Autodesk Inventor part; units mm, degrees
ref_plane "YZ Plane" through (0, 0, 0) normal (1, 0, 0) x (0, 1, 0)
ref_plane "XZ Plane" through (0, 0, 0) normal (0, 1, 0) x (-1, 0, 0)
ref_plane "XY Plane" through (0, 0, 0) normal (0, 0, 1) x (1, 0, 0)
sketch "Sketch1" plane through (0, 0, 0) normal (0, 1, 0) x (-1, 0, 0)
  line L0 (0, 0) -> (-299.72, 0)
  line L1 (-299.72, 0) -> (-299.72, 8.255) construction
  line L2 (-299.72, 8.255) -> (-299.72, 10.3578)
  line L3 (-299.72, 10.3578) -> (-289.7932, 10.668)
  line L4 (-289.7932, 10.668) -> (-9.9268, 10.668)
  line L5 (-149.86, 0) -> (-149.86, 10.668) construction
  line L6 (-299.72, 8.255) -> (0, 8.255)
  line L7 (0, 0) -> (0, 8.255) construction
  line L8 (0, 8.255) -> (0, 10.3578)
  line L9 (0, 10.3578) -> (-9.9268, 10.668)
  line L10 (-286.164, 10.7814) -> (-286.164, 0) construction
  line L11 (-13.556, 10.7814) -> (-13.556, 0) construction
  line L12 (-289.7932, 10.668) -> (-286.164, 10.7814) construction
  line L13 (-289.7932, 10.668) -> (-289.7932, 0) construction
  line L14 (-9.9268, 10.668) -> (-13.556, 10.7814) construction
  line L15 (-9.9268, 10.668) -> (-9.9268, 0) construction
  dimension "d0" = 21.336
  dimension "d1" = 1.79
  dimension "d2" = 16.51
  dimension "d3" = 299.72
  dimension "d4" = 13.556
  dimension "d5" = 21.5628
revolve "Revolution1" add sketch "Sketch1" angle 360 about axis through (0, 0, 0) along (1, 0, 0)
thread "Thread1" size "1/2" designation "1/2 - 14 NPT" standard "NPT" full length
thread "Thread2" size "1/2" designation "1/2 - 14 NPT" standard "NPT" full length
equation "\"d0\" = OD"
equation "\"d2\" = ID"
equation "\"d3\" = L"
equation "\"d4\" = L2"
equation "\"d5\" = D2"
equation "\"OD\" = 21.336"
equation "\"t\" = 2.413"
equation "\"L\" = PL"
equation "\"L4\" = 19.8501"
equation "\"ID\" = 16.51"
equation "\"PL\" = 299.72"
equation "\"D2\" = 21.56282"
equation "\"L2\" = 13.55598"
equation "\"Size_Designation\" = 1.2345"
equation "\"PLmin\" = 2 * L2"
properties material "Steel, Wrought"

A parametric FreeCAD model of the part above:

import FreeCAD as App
import Part
import Sketcher
Q = App.Units.Quantity

doc = App.newDocument("Part")
body = doc.addObject("PartDesign::Body", "Body")

# Sketch on XZ plane
sketch1 = body.newObject("Sketcher::SketchObject", "Sketch")
sketch1.AttachmentSupport = (doc.getObject("XZ_Plane"), [""])
sketch1.MapMode = "FlatFace"
sketch1.addGeometry(Part.LineSegment(App.Vector(299.7, 10.4, 0), App.Vector(299.7, 8.3, 0)), False)
sketch1.addGeometry(Part.LineSegment(App.Vector(299.7, 8.3, 0), App.Vector(0, 8.3, 0)), False)
sketch1.addGeometry(Part.LineSegment(App.Vector(0, 8.3, 0), App.Vector(0, 10.4, 0)), False)
sketch1.addGeometry(Part.LineSegment(App.Vector(0, 10.4, 0), App.Vector(9.9, 10.7, 0)), False)
sketch1.addGeometry(Part.LineSegment(App.Vector(9.9, 10.7, 0), App.Vector(289.8, 10.7, 0)), False)
sketch1.addGeometry(Part.LineSegment(App.Vector(289.8, 10.7, 0), App.Vector(299.7, 10.4, 0)), False)
sketch1.addConstraint(Sketcher.Constraint("Coincident", 0, 2, 1, 1))
sketch1.addConstraint(Sketcher.Constraint("Coincident", 1, 2, 2, 1))
sketch1.addConstraint(Sketcher.Constraint("Coincident", 2, 2, 3, 1))
sketch1.addConstraint(Sketcher.Constraint("Coincident", 3, 2, 4, 1))
sketch1.addConstraint(Sketcher.Constraint("Coincident", 4, 2, 5, 1))
sketch1.addConstraint(Sketcher.Constraint("Coincident", 5, 2, 0, 1))
sketch1.addConstraint(Sketcher.Constraint("Vertical", 0))
sketch1.addConstraint(Sketcher.Constraint("Horizontal", 1))
sketch1.addConstraint(Sketcher.Constraint("Vertical", 2))
sketch1.addConstraint(Sketcher.Constraint("Horizontal", 4))
sketch1.addConstraint(Sketcher.Constraint("PointOnObject", 1, 2, -2))
sketch1.addConstraint(Sketcher.Constraint("Horizontal", 2, 2, 5, 2))
sketch1.addConstraint(Sketcher.Constraint("Equal", 3, 5))
sketch1.addConstraint(Sketcher.Constraint("DistanceX", 1, 2, 1, 1, Q("11.8 in")))
sketch1.addConstraint(Sketcher.Constraint("Angle", 3, Q("1.7898 deg")))
sketch1.addConstraint(Sketcher.Constraint("DistanceY", -1, 1, 3, 2, Q("0.42 in")))
sketch1.addConstraint(Sketcher.Constraint("Distance", 3, Q("0.391 in")))
sketch1.addConstraint(Sketcher.Constraint("DistanceY", -1, 1, 0, 2, Q("0.325 in")))
revolution = body.newObject("PartDesign::Revolution", "Revolution")
revolution.Profile = sketch1
revolution.ReferenceAxis = (sketch1, ["H_Axis"])
revolution.Angle = 360

doc.recompute()
